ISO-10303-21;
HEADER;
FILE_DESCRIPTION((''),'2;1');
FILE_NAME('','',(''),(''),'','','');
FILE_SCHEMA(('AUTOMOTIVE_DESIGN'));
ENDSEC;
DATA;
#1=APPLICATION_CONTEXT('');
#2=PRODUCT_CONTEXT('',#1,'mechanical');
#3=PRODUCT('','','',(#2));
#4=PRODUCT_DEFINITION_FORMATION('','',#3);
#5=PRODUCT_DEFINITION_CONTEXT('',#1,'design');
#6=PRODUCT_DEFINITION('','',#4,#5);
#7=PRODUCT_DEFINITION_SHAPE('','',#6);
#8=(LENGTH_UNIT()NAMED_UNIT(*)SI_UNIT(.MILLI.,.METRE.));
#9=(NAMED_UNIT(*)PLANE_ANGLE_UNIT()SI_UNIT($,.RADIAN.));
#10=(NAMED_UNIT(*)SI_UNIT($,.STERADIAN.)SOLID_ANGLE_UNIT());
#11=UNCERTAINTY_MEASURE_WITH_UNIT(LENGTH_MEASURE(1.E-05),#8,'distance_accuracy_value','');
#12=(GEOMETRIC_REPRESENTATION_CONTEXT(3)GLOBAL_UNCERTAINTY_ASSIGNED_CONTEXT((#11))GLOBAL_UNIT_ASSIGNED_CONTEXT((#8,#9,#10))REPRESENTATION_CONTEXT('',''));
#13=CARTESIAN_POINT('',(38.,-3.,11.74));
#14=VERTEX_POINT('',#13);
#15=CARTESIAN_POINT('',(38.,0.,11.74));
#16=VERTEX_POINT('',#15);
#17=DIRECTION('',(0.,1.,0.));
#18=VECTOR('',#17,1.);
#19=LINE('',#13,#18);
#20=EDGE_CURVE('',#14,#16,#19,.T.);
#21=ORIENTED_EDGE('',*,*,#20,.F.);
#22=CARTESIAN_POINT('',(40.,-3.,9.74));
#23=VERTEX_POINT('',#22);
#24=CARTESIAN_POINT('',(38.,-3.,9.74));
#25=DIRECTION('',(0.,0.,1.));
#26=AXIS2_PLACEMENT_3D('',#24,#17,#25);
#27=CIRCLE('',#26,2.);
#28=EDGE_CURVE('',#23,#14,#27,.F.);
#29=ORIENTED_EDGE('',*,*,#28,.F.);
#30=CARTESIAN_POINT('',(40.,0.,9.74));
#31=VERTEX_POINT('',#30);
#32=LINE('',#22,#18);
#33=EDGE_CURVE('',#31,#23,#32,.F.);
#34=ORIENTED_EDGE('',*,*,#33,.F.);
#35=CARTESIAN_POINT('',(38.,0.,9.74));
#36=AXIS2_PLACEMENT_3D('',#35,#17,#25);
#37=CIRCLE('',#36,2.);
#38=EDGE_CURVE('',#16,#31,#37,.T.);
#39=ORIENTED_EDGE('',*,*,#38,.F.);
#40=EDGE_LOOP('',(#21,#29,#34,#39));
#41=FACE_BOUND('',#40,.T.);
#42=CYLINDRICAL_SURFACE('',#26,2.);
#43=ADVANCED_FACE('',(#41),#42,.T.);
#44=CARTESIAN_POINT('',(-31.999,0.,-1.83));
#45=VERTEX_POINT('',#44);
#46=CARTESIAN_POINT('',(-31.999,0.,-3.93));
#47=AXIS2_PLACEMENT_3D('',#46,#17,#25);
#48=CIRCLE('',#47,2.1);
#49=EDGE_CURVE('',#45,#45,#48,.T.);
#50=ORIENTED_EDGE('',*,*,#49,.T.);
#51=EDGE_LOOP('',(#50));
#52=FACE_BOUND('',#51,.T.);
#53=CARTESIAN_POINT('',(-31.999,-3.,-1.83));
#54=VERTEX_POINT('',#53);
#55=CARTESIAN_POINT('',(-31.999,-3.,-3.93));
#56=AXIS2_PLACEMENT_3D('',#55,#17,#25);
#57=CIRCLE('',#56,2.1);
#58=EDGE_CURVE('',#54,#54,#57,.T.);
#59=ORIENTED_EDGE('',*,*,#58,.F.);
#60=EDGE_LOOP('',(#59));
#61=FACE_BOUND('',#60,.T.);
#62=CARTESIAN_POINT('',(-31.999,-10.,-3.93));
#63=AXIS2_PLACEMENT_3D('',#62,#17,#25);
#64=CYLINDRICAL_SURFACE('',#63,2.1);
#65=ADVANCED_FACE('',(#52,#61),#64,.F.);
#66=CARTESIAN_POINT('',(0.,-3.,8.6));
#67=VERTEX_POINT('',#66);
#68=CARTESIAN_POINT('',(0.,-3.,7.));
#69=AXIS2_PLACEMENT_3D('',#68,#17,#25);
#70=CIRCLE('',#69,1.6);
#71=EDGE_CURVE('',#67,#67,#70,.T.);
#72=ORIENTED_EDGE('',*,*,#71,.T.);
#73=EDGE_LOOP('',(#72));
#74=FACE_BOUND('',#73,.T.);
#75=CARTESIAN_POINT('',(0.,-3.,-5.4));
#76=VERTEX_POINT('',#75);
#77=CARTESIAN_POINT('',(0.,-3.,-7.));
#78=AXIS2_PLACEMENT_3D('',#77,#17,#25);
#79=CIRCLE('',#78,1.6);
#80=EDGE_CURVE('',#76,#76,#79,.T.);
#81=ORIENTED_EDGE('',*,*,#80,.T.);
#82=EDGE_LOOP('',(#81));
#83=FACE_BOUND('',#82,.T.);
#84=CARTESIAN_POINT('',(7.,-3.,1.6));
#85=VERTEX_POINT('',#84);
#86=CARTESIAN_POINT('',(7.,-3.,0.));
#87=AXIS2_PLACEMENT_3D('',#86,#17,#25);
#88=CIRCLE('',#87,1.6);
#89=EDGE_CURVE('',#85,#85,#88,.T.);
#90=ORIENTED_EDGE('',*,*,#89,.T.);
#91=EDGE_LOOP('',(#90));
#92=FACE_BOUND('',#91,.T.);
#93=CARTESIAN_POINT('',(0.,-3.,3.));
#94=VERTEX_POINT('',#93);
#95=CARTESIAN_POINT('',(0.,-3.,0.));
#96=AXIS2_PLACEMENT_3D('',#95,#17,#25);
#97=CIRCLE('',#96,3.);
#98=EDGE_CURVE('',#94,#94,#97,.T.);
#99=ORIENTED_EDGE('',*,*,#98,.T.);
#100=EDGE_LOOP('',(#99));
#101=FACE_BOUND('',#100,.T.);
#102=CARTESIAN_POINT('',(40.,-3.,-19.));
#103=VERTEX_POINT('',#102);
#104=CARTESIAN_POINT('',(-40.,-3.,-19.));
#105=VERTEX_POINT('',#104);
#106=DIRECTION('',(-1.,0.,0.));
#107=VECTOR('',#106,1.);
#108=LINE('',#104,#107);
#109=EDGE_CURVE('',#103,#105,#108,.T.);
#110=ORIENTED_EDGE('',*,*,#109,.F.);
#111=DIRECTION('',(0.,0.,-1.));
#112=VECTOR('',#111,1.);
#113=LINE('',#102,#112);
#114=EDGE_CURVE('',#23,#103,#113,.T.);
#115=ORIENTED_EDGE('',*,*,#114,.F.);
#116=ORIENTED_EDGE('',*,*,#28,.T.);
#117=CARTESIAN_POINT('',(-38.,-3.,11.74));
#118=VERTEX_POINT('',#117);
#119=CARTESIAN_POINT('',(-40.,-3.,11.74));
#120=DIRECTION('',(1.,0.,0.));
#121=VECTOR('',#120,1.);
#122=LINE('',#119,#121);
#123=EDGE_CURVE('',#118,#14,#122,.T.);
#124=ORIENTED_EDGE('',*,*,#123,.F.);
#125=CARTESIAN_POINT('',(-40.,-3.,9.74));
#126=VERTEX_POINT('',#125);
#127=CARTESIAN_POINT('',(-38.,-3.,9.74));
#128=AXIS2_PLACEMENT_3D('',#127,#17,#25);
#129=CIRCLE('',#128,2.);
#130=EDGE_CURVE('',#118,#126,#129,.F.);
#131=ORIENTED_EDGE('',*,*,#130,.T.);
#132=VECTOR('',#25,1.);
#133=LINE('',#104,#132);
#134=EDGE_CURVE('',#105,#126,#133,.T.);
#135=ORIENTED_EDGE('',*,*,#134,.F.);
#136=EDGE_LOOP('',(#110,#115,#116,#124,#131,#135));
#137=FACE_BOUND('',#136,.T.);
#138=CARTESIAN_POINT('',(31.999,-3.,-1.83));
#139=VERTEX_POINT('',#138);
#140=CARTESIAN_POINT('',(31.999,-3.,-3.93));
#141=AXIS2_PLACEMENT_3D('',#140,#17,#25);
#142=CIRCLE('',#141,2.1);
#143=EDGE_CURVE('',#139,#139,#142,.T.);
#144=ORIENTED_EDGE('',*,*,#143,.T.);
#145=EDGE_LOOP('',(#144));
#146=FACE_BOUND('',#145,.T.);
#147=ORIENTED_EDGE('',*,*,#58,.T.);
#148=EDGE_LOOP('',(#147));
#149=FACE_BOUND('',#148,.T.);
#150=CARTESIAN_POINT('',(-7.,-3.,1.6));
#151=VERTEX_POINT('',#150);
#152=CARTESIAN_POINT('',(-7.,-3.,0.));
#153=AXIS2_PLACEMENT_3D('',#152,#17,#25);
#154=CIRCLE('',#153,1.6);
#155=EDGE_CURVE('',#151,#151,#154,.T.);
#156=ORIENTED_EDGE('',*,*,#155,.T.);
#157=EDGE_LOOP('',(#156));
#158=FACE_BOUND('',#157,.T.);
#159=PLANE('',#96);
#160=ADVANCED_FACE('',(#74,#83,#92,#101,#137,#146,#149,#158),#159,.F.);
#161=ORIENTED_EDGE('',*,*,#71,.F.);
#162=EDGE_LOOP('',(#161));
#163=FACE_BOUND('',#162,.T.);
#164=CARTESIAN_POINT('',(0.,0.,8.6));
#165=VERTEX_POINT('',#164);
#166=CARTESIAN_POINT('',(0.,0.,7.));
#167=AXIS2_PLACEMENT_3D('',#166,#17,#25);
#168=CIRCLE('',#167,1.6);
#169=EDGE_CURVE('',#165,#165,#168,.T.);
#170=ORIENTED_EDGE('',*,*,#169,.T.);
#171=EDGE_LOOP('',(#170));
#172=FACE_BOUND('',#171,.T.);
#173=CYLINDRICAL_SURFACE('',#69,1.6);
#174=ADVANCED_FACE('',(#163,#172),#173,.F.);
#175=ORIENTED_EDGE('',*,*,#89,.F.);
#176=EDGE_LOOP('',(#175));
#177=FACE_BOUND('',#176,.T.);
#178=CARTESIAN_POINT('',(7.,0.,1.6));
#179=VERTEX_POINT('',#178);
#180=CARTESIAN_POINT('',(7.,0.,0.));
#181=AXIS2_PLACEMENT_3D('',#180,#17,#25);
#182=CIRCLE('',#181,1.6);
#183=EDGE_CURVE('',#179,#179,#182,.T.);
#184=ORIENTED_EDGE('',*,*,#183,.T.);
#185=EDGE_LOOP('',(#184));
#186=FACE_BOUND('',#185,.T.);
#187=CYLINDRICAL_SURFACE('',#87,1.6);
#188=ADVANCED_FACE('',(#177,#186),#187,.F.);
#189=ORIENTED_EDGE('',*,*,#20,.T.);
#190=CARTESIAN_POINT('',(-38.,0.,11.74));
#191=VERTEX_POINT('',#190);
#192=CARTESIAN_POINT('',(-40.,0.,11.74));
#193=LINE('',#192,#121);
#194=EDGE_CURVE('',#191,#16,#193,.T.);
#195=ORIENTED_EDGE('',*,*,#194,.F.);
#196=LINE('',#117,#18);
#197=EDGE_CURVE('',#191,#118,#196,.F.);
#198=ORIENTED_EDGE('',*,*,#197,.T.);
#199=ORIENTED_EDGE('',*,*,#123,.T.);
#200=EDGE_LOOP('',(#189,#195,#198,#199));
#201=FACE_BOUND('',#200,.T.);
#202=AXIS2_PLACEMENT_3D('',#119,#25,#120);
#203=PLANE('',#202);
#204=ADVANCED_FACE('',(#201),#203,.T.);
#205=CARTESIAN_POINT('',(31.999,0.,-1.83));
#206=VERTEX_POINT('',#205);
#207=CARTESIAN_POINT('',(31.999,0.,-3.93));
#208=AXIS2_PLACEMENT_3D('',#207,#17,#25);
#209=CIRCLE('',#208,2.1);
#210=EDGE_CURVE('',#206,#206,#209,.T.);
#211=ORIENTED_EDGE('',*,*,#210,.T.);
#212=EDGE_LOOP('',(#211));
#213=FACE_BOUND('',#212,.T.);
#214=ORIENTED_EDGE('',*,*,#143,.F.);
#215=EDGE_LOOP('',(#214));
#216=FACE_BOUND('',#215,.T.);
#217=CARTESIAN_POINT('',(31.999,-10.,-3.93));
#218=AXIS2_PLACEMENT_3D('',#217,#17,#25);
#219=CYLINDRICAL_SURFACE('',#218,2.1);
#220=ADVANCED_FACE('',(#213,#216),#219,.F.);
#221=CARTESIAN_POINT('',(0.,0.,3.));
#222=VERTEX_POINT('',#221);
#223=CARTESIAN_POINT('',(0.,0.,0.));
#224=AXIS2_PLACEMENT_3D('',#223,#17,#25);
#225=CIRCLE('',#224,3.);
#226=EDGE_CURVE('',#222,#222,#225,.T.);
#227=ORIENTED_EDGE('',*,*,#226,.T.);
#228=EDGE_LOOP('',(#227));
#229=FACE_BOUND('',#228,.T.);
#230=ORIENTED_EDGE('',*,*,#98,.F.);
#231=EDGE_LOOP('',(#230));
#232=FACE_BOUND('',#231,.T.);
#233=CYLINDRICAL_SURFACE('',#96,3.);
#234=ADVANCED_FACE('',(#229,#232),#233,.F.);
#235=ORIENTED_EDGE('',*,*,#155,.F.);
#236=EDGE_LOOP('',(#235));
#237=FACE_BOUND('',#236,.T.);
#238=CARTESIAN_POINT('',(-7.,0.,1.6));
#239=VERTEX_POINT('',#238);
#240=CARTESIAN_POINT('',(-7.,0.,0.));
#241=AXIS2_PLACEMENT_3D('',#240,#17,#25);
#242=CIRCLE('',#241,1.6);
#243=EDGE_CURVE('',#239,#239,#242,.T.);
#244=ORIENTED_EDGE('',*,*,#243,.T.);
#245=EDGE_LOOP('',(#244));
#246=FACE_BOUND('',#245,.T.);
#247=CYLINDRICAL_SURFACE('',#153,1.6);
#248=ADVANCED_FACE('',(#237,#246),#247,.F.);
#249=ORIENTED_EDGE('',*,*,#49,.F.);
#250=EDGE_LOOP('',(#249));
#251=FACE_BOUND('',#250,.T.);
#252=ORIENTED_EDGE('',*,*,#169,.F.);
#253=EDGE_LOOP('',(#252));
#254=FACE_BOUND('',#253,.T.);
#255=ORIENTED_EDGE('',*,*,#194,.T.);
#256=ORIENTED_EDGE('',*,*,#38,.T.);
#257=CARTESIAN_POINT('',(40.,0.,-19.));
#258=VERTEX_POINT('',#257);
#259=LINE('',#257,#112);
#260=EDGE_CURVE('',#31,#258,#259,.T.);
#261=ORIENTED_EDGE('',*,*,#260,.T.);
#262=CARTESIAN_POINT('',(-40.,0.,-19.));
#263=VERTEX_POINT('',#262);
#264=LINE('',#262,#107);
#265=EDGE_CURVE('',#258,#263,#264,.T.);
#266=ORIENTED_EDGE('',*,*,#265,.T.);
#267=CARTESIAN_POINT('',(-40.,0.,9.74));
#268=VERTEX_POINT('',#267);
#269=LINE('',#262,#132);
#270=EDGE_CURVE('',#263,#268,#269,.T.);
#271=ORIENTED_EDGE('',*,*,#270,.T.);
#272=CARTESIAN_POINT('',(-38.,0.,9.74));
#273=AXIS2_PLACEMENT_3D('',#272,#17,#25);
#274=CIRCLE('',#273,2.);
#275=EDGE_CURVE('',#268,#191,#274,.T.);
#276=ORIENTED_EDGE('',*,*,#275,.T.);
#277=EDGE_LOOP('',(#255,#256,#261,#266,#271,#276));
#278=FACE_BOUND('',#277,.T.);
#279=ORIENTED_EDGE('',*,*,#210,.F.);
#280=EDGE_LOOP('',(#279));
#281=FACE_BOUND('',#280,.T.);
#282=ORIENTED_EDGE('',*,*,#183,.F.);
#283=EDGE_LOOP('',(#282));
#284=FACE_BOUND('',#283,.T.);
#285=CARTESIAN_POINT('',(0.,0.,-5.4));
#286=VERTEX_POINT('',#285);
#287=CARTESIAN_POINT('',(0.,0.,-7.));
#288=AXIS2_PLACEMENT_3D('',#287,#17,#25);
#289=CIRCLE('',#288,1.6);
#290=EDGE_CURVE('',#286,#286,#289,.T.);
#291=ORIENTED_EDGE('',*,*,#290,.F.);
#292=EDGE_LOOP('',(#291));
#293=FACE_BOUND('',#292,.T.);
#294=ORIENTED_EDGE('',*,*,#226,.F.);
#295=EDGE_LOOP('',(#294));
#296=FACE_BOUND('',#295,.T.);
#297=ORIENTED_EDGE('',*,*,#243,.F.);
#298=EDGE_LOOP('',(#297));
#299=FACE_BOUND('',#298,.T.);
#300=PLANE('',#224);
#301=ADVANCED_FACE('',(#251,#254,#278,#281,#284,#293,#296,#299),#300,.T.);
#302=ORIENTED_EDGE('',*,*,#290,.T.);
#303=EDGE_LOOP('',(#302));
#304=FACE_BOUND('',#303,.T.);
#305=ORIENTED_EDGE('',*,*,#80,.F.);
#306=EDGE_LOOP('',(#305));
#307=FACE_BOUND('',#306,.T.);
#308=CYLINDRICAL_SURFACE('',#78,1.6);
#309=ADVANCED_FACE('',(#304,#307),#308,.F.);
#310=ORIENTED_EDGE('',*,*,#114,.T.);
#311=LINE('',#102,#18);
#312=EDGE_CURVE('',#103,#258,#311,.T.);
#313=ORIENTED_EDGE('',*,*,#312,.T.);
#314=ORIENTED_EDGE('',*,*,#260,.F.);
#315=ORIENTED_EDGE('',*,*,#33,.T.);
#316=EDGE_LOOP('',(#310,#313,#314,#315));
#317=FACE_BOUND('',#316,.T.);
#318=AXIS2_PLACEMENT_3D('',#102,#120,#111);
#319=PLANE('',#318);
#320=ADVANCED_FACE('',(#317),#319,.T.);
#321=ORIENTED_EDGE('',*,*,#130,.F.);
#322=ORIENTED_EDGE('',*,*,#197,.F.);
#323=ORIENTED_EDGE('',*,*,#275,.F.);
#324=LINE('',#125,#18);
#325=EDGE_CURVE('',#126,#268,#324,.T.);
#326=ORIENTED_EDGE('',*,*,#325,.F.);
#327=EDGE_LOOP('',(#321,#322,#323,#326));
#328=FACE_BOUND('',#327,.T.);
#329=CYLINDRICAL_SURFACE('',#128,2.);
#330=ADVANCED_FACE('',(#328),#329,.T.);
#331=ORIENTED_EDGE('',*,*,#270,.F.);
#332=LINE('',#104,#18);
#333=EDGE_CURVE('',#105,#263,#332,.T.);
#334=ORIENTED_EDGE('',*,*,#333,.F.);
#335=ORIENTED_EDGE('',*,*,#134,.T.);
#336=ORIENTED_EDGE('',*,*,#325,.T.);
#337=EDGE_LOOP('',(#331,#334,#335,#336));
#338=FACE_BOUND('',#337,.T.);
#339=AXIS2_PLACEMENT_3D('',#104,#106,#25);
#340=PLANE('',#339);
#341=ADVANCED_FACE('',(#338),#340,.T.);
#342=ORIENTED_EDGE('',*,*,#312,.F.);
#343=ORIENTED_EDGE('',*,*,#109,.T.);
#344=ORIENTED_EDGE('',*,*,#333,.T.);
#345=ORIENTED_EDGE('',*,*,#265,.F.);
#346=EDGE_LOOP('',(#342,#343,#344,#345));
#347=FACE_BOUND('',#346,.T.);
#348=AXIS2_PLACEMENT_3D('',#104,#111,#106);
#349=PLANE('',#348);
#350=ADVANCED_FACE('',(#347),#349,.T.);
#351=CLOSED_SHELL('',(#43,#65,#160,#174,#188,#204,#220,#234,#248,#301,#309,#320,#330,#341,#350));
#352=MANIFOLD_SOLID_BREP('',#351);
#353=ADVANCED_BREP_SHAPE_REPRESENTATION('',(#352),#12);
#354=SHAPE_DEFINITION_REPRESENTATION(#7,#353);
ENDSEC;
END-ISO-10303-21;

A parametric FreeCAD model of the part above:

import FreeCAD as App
import Part
import Sketcher

V = App.Vector


def edges_at(feature, points):
    """Names of the edges that pass closest to the given points."""
    edges = feature.Shape.Edges
    near = lambda p: min(range(len(edges)), key=lambda i: edges[i].distToShape(Part.Vertex(*p))[0])
    return sorted({f"Edge{near(p) + 1}" for p in points})

doc = App.newDocument("Part")
params = doc.addObject("Spreadsheet::Sheet", "Params")
for row, (alias, value) in enumerate([
    ("sketch1_diameter", "6 mm"),
    ("sketch1_diameter2", "3.2 mm"),
    ("sketch1_width", "80 mm"),
    ("sketch1_height", "30.74 mm"),
    ("pad1_length", "3 mm"),
    ("sketch2_diameter", "4.2 mm"),
    ("pocket1_length", "10 mm"),
    ("fillet_radius", "2 mm"),
], start=1):
    params.set(f"A{row}", alias)
    params.set(f"B{row}", "=" + value)
    params.setAlias(f"B{row}", alias)

body = doc.addObject("PartDesign::Body", "Body")

sketch1 = doc.addObject("Sketcher::SketchObject", "Sketch")
body.addObject(sketch1)
sketch1.AttachmentSupport = (doc.XZ_Plane, [""])
sketch1.MapMode = "FlatFace"
sketch1.addGeometry(Part.LineSegment(V(-40, -19, 0), V(-40, 11.7, 0)), False)
sketch1.addGeometry(Part.LineSegment(V(-40, 11.7, 0), V(40, 11.7, 0)), False)
sketch1.addGeometry(Part.LineSegment(V(40, 11.7, 0), V(40, -19, 0)), False)
sketch1.addGeometry(Part.LineSegment(V(40, -19, 0), V(-40, -19, 0)), False)
sketch1.addGeometry(Part.Circle(V(-7, 0, 0), V(0, 0, 1), 1.6), False)
sketch1.addGeometry(Part.Circle(V(0, 7, 0), V(0, 0, 1), 1.6), False)
sketch1.addGeometry(Part.Circle(V(0, 0, 0), V(0, 0, 1), 3), False)
sketch1.addGeometry(Part.Circle(V(7, 0, 0), V(0, 0, 1), 1.6), False)
sketch1.addGeometry(Part.Circle(V(0, -7, 0), V(0, 0, 1), 1.6), False)
sketch1.addConstraint(Sketcher.Constraint("Coincident", 0, 2, 1, 1))
sketch1.addConstraint(Sketcher.Constraint("Coincident", 1, 2, 2, 1))
sketch1.addConstraint(Sketcher.Constraint("Coincident", 2, 2, 3, 1))
sketch1.addConstraint(Sketcher.Constraint("Coincident", 3, 2, 0, 1))
sketch1.addConstraint(Sketcher.Constraint("Vertical", 0))
sketch1.addConstraint(Sketcher.Constraint("Horizontal", 1))
sketch1.addConstraint(Sketcher.Constraint("Vertical", 2))
sketch1.addConstraint(Sketcher.Constraint("Horizontal", 3))
sketch1.addConstraint(Sketcher.Constraint("Coincident", 6, 3, -1, 1))
sketch1.addConstraint(Sketcher.Constraint("Equal", 4, 5))
sketch1.addConstraint(Sketcher.Constraint("Equal", 5, 7))
sketch1.addConstraint(Sketcher.Constraint("Equal", 7, 8))
sketch1.addConstraint(Sketcher.Constraint("Symmetric", 4, 3, 7, 3, -1, 1))
sketch1.addConstraint(Sketcher.Constraint("Symmetric", 5, 3, 8, 3, -1, 1))
sketch1.addConstraint(Sketcher.Constraint("PointOnObject", 4, 3, -1))
sketch1.addConstraint(Sketcher.Constraint("PointOnObject", 5, 3, -2))
sketch1.addConstraint(Sketcher.Constraint("Diameter", 6, 6.0))
sketch1.addConstraint(Sketcher.Constraint("Diameter", 4, 3.2))
sketch1.addConstraint(Sketcher.Constraint("DistanceX", 1, 1, 1, 2, 80.0))
sketch1.addConstraint(Sketcher.Constraint("DistanceX", 4, 3, -1, 1, 7.0))
sketch1.addConstraint(Sketcher.Constraint("DistanceY", -1, 1, 5, 3, 7.0))
sketch1.addConstraint(Sketcher.Constraint("DistanceX", 0, 2, -1, 1, 40.0))
sketch1.addConstraint(Sketcher.Constraint("DistanceY", 2, 2, -1, 1, 19.0))
sketch1.addConstraint(Sketcher.Constraint("DistanceY", 0, 1, 0, 2, 30.74))
sketch1.setExpression("Constraints[16]", "Params.sketch1_diameter")
sketch1.setExpression("Constraints[17]", "Params.sketch1_diameter2")
sketch1.setExpression("Constraints[18]", "Params.sketch1_width")
sketch1.setExpression("Constraints[23]", "Params.sketch1_height")
pad1 = doc.addObject("PartDesign::Pad", "Pad")
body.addObject(pad1)
pad1.Profile = sketch1
pad1.setExpression("Length", "Params.pad1_length")

sketch2 = doc.addObject("Sketcher::SketchObject", "Sketch001")
body.addObject(sketch2)
sketch2.AttachmentSupport = (doc.XZ_Plane, [""])
sketch2.MapMode = "FlatFace"
sketch2.addGeometry(Part.Circle(V(32, -3.9, 0), V(0, 0, 1), 2.1), False)
sketch2.addGeometry(Part.Circle(V(-32, -3.9, 0), V(0, 0, 1), 2.1), False)
sketch2.addConstraint(Sketcher.Constraint("Equal", 0, 1))
sketch2.addConstraint(Sketcher.Constraint("Symmetric", 0, 3, 1, 3, -2))
sketch2.addConstraint(Sketcher.Constraint("Diameter", 0, 4.2))
sketch2.addConstraint(Sketcher.Constraint("DistanceY", 0, 3, -1, 1, 3.93))
sketch2.addConstraint(Sketcher.Constraint("DistanceX", -1, 1, 0, 3, 31.999))
sketch2.setExpression("Constraints[2]", "Params.sketch2_diameter")
pocket1 = doc.addObject("PartDesign::Pocket", "Pocket")
body.addObject(pocket1)
pocket1.Profile = sketch2
pocket1.setExpression("Length", "Params.pocket1_length")
pocket1.Reversed = True
doc.recompute()

fillet = doc.addObject("PartDesign::Fillet", "Fillet")
body.addObject(fillet)
fillet.Base = (pocket1, edges_at(pocket1, [(40, -1.5, 11.74), (-40, -1.5, 11.74)]))
fillet.setExpression("Radius", "Params.fillet_radius")

doc.recompute()
